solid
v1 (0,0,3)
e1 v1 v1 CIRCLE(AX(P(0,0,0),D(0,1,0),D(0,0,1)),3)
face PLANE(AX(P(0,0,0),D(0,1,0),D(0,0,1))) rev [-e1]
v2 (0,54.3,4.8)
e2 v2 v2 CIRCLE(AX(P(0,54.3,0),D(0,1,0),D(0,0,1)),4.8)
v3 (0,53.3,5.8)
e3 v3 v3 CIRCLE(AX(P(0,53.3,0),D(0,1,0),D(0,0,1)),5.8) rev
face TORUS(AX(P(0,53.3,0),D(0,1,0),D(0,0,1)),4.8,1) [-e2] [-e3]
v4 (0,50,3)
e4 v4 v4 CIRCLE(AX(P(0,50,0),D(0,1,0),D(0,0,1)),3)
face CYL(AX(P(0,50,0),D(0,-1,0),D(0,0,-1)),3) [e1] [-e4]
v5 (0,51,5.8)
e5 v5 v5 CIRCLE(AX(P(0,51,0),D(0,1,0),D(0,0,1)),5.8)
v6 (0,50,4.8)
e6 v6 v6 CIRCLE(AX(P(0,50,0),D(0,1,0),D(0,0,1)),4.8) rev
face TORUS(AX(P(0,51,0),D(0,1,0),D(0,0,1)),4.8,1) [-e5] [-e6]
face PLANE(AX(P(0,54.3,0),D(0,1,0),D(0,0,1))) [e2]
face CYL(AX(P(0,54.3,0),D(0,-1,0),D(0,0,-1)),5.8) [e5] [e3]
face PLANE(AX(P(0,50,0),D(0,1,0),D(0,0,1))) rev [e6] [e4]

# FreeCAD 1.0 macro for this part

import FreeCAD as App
import Part
import Sketcher

V = App.Vector
Q = App.Units.Quantity


def edges_at(feature, points):
    """Names of the edges that pass closest to the given points."""
    edges = feature.Shape.Edges
    near = lambda p: min(range(len(edges)), key=lambda i: edges[i].distToShape(Part.Vertex(*p))[0])
    return sorted({f"Edge{near(p) + 1}" for p in points})

doc = App.newDocument("Part")
body = doc.addObject("PartDesign::Body", "Body")

# Sketch on XZ plane
sketch1 = body.newObject("Sketcher::SketchObject", "Sketch")
sketch1.AttachmentSupport = (doc.getObject("XZ_Plane"), [""])
sketch1.MapMode = "FlatFace"
sketch1.addGeometry(Part.Circle(V(0, 0, 0), V(0, 0, 1), 3), False)
sketch1.addConstraint(Sketcher.Constraint("Coincident", 0, 3, -1, 1))
sketch1.addConstraint(Sketcher.Constraint("Diameter", 0, Q("6 mm")))
pad1 = body.newObject("PartDesign::Pad", "Pad")
pad1.Profile = sketch1
pad1.Length = 50
pad1.Reversed = True

# Sketch on XZ plane
sketch2 = body.newObject("Sketcher::SketchObject", "Sketch001")
sketch2.AttachmentSupport = (doc.getObject("XZ_Plane"), [""])
sketch2.MapMode = "FlatFace"
sketch2.AttachmentOffset = App.Placement(V(0, 0, -50), App.Rotation())
sketch2.addGeometry(Part.Circle(V(0, 0, 0), V(0, 0, 1), 5.8), False)
sketch2.addConstraint(Sketcher.Constraint("Coincident", 0, 3, -1, 1))
sketch2.addConstraint(Sketcher.Constraint("Diameter", 0, Q("11.6 mm")))
pad2 = body.newObject("PartDesign::Pad", "Pad001")
pad2.Profile = sketch2
pad2.Length = 4.3
pad2.Reversed = True
doc.recompute()

fillet = body.newObject("PartDesign::Fillet", "Fillet")
fillet.Base = (pad2, edges_at(pad2, [(0, 50, -5.8), (0, 54.3, -5.8)]))
fillet.Radius = 1

doc.recompute()
